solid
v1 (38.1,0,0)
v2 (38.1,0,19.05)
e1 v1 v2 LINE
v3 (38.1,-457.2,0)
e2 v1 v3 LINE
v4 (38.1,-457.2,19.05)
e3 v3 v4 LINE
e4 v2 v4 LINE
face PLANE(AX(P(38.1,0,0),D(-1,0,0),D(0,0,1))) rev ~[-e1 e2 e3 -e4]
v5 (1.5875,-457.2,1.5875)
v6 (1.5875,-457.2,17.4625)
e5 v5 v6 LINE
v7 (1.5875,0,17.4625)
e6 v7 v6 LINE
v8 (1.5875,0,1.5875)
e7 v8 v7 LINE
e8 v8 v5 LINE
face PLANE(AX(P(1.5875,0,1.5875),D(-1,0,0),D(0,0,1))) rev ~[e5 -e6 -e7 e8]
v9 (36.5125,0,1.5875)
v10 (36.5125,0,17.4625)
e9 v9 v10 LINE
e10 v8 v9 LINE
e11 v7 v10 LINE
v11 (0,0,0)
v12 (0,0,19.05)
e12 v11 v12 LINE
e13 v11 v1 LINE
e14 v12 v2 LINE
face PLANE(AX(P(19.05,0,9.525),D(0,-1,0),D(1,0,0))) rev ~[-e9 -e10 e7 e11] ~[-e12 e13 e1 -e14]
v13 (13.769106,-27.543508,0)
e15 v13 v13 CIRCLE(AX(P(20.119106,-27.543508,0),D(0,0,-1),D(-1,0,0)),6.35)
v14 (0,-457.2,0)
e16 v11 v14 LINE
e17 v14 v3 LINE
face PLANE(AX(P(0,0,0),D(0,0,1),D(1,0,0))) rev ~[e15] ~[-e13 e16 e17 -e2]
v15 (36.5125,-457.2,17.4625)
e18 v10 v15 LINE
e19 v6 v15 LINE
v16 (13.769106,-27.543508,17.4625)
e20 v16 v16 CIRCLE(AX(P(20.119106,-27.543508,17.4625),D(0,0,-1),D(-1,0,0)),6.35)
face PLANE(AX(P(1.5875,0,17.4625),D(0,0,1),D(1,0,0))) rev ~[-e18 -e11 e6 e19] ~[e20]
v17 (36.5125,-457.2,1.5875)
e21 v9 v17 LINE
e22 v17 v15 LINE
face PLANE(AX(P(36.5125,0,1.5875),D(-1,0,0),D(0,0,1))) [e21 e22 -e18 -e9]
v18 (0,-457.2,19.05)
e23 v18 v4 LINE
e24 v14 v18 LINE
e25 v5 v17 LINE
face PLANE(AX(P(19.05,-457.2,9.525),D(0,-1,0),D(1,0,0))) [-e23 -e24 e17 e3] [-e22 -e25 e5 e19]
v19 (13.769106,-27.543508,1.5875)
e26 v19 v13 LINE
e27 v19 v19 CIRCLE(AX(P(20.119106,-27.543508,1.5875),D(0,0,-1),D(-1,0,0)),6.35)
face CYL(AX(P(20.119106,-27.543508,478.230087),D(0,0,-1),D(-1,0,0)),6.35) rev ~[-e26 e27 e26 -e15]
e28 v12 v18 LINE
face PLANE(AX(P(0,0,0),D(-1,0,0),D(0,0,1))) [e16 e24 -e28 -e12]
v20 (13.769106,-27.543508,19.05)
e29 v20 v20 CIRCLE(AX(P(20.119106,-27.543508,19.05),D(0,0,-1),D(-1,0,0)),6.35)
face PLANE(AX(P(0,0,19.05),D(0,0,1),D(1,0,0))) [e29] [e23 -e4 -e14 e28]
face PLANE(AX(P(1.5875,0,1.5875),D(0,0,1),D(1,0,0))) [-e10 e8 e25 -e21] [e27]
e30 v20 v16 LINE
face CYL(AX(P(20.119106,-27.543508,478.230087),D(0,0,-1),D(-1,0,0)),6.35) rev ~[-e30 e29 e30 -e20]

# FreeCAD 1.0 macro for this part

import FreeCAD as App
import Part
import Sketcher

V = App.Vector
Q = App.Units.Quantity

doc = App.newDocument("Part")
params = doc.addObject("Spreadsheet::Sheet", "Params")
for row, (alias, value) in enumerate([
    ("sketch1_width", "1.5 in"),
    ("sketch1_height", "0.75 in"),
    ("sketch1_width2", "1.375 in"),
    ("sketch1_height2", "0.625 in"),
    ("pad1_length", "18 in"),
    ("sketch2_diameter", "0.5 in"),
    ("hole_diameter", "0.5 in"),
], start=1):
    params.set(f"A{row}", alias)
    params.set(f"B{row}", "=" + value)
    params.setAlias(f"B{row}", alias)

body = doc.addObject("PartDesign::Body", "Body")

# Sketch on XZ plane
sketch1 = body.newObject("Sketcher::SketchObject", "Sketch")
sketch1.AttachmentSupport = (doc.getObject("XZ_Plane"), [""])
sketch1.MapMode = "FlatFace"
sketch1.addGeometry([
    Part.LineSegment(V(0, 19, 0), V(0, 0, 0)),  # 0
    Part.LineSegment(V(0, 0, 0), V(38, 0, 0)),  # 1
    Part.LineSegment(V(38, 0, 0), V(38, 19, 0)),  # 2
    Part.LineSegment(V(38, 19, 0), V(0, 19, 0)),  # 3
    Part.LineSegment(V(37, 2, 0), V(2, 2, 0)),  # 4
    Part.LineSegment(V(2, 2, 0), V(2, 17, 0)),  # 5
    Part.LineSegment(V(2, 17, 0), V(37, 17, 0)),  # 6
    Part.LineSegment(V(37, 17, 0), V(37, 2, 0)),  # 7
], False)
sketch1.addConstraint([
    Sketcher.Constraint("Coincident", 0, 2, 1, 1),
    Sketcher.Constraint("Coincident", 1, 2, 2, 1),
    Sketcher.Constraint("Coincident", 2, 2, 3, 1),
    Sketcher.Constraint("Coincident", 3, 2, 0, 1),
    Sketcher.Constraint("Coincident", 4, 2, 5, 1),
    Sketcher.Constraint("Coincident", 5, 2, 6, 1),
    Sketcher.Constraint("Coincident", 6, 2, 7, 1),
    Sketcher.Constraint("Coincident", 7, 2, 4, 1),
    Sketcher.Constraint("Vertical", 0),
    Sketcher.Constraint("Horizontal", 1),
    Sketcher.Constraint("Vertical", 2),
    Sketcher.Constraint("Horizontal", 3),
    Sketcher.Constraint("Horizontal", 4),
    Sketcher.Constraint("Vertical", 5),
    Sketcher.Constraint("Horizontal", 6),
    Sketcher.Constraint("Vertical", 7),
    Sketcher.Constraint("Coincident", 0, 2, -1, 1),
    Sketcher.Constraint("DistanceX", 1, 1, 1, 2, Q("1.5 in")),
    Sketcher.Constraint("DistanceY", 0, 2, 0, 1, Q("0.75 in")),
    Sketcher.Constraint("DistanceX", 4, 2, 4, 1, Q("1.375 in")),
    Sketcher.Constraint("DistanceY", 5, 1, 5, 2, Q("0.625 in")),
    Sketcher.Constraint("DistanceX", -1, 1, 4, 2, Q("0.0625 in")),
    Sketcher.Constraint("DistanceY", -1, 1, 4, 2, Q("0.0625 in")),
])
sketch1.setExpression("Constraints[17]", "Params.sketch1_width")
sketch1.setExpression("Constraints[18]", "Params.sketch1_height")
sketch1.setExpression("Constraints[19]", "Params.sketch1_width2")
sketch1.setExpression("Constraints[20]", "Params.sketch1_height2")
pad1 = body.newObject("PartDesign::Pad", "Pad")
pad1.Profile = sketch1
pad1.setExpression("Length", "Params.pad1_length")

# Sketch on XY plane
sketch2 = body.newObject("Sketcher::SketchObject", "Sketch001")
sketch2.AttachmentSupport = (doc.getObject("XY_Plane"), [""])
sketch2.MapMode = "FlatFace"
sketch2.AttachmentOffset = App.Placement(V(0, 0, 0.75 * 25.4), App.Rotation())
sketch2.addGeometry(Part.Circle(V(20, -28, 0), V(0, 0, 1), 6), False)
sketch2.addConstraint([
    Sketcher.Constraint("Diameter", 0, Q("0.5 in")),
    Sketcher.Constraint("DistanceX", -1, 1, 0, 3, Q("20.119106 mm")),
    Sketcher.Constraint("DistanceY", 0, 3, -1, 1, Q("27.543508 mm")),
])
sketch2.setExpression("Constraints[0]", "Params.sketch2_diameter")
doc.recompute()
hole = body.newObject("PartDesign::Hole", "Hole")
hole.Profile = sketch2
hole.ThreadType = "None"
hole.setExpression("Diameter", "Params.hole_diameter")
hole.DepthType = "ThroughAll"

doc.recompute()
